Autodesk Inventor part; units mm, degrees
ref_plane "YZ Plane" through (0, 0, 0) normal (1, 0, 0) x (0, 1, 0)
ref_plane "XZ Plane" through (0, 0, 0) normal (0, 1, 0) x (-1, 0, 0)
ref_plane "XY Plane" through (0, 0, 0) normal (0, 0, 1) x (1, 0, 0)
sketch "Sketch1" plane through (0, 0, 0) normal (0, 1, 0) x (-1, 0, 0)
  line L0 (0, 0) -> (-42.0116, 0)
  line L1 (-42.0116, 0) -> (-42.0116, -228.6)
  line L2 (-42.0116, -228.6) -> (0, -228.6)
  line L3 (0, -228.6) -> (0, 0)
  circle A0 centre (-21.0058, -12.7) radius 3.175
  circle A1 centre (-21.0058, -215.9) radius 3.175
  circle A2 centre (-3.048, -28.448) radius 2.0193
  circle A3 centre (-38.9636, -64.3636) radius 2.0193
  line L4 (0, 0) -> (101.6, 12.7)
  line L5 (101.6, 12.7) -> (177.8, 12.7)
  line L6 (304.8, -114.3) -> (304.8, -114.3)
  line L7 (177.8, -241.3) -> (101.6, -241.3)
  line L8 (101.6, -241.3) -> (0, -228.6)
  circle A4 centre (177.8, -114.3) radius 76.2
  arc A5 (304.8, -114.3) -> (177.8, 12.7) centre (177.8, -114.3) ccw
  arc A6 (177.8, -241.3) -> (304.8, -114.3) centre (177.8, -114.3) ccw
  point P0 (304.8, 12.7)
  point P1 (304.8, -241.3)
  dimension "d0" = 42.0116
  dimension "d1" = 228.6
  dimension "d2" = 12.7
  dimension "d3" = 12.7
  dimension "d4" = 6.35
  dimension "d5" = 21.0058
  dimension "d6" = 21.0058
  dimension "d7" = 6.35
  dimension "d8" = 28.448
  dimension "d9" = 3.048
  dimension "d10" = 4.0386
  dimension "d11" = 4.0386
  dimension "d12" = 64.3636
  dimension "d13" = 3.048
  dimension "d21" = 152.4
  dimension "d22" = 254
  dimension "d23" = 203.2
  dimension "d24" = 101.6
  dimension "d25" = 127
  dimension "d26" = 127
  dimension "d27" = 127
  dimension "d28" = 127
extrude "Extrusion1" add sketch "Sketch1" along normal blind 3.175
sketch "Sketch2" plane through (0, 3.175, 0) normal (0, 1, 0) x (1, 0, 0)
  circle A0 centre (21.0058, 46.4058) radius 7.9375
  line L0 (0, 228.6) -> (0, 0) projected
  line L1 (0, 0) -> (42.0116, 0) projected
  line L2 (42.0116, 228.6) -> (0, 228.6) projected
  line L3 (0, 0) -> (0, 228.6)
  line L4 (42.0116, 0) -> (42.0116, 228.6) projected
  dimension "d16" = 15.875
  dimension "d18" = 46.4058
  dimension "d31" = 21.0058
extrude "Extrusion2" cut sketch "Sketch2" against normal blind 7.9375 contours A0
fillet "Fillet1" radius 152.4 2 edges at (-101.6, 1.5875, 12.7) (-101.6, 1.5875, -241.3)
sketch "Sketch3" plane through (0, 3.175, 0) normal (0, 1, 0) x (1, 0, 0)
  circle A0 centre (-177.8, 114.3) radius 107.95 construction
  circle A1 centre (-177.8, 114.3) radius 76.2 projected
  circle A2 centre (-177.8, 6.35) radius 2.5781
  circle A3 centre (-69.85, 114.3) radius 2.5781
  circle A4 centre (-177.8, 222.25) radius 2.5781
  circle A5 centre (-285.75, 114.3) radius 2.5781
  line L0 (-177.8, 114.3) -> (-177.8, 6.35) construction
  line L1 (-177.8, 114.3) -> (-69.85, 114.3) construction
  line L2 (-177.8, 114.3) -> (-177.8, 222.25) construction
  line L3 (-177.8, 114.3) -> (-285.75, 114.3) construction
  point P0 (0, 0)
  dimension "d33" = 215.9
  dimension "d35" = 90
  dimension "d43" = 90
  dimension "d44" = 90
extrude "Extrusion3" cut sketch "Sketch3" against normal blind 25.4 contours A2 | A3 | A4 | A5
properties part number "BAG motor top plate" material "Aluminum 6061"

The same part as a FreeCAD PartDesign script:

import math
import FreeCAD as App
import Part
import Sketcher
from FreeCAD import Vector
Q = App.Units.Quantity


def edges_at(feature, points):
    """Names of the edges that pass closest to the given points."""
    edges = feature.Shape.Edges
    near = lambda p: min(range(len(edges)), key=lambda i: edges[i].distToShape(Part.Vertex(*p))[0])
    return sorted({f"Edge{near(p) + 1}" for p in points})

doc = App.newDocument("Part")
body = doc.addObject("PartDesign::Body", "Body")

sketch1 = body.newObject("Sketcher::SketchObject", "Sketch")
sketch1.AttachmentSupport = (doc.getObject("XZ_Plane"), [""])
sketch1.MapMode = "FlatFace"
sketch1.addGeometry(Part.LineSegment(Vector(42, -228.6, 0), Vector(0, -228.6, 0)), False)
sketch1.addGeometry(Part.LineSegment(Vector(0, -228.6, 0), Vector(-101.6, -241.3, 0)), False)
sketch1.addGeometry(Part.LineSegment(Vector(-101.6, -241.3, 0), Vector(-177.8, -241.3, 0)), False)
sketch1.addGeometry(Part.ArcOfCircle(Part.Circle(Vector(-177.8, -114.3, 0), Vector(0, 0, 1), 127), math.radians(90), math.radians(270)), False)
sketch1.addGeometry(Part.LineSegment(Vector(-177.8, 12.7, 0), Vector(-101.6, 12.7, 0)), False)
sketch1.addGeometry(Part.LineSegment(Vector(-101.6, 12.7, 0), Vector(0, 0, 0)), False)
sketch1.addGeometry(Part.LineSegment(Vector(0, 0, 0), Vector(42, 0, 0)), False)
sketch1.addGeometry(Part.LineSegment(Vector(42, 0, 0), Vector(42, -228.6, 0)), False)
sketch1.addGeometry(Part.Circle(Vector(21, -215.9, 0), Vector(0, 0, 1), 3.2), False)
sketch1.addGeometry(Part.Circle(Vector(39, -64.4, 0), Vector(0, 0, 1), 2), False)
sketch1.addGeometry(Part.Circle(Vector(3, -28.4, 0), Vector(0, 0, 1), 2), False)
sketch1.addGeometry(Part.Circle(Vector(21, -12.7, 0), Vector(0, 0, 1), 3.2), False)
sketch1.addGeometry(Part.Circle(Vector(-177.8, -114.3, 0), Vector(0, 0, 1), 76.2), False)
sketch1.addConstraint(Sketcher.Constraint("Coincident", 0, 2, 1, 1))
sketch1.addConstraint(Sketcher.Constraint("Coincident", 1, 2, 2, 1))
sketch1.addConstraint(Sketcher.Constraint("Tangent", 2, 2, 3, 2))
sketch1.addConstraint(Sketcher.Constraint("Tangent", 3, 1, 4, 1))
sketch1.addConstraint(Sketcher.Constraint("Coincident", 4, 2, 5, 1))
sketch1.addConstraint(Sketcher.Constraint("Coincident", 5, 2, 6, 1))
sketch1.addConstraint(Sketcher.Constraint("Coincident", 6, 2, 7, 1))
sketch1.addConstraint(Sketcher.Constraint("Coincident", 7, 2, 0, 1))
sketch1.addConstraint(Sketcher.Constraint("Horizontal", 0))
sketch1.addConstraint(Sketcher.Constraint("Horizontal", 2))
sketch1.addConstraint(Sketcher.Constraint("Horizontal", 4))
sketch1.addConstraint(Sketcher.Constraint("Horizontal", 6))
sketch1.addConstraint(Sketcher.Constraint("Vertical", 7))
sketch1.addConstraint(Sketcher.Constraint("Coincident", 5, 2, -1, 1))
sketch1.addConstraint(Sketcher.Constraint("Coincident", 12, 3, 3, 3))
sketch1.addConstraint(Sketcher.Constraint("Equal", 9, 10))
sketch1.addConstraint(Sketcher.Constraint("Equal", 8, 11))
sketch1.addConstraint(Sketcher.Constraint("PointOnObject", 0, 2, -2))
sketch1.addConstraint(Sketcher.Constraint("Vertical", 8, 3, 11, 3))
sketch1.addConstraint(Sketcher.Constraint("Vertical", 1, 2, 4, 2))
sketch1.addConstraint(Sketcher.Constraint("Equal", 1, 5))
sketch1.addConstraint(Sketcher.Constraint("Diameter", 12, Q("6 in")))
sketch1.addConstraint(Sketcher.Constraint("Radius", 3, Q("5 in")))
sketch1.addConstraint(Sketcher.Constraint("Diameter", 8, Q("0.25 in")))
sketch1.addConstraint(Sketcher.Constraint("DistanceY", 7, 2, 7, 1, Q("9 in")))
sketch1.addConstraint(Sketcher.Constraint("Diameter", 9, Q("0.159 in")))
sketch1.addConstraint(Sketcher.Constraint("DistanceX", 1, 2, -1, 1, Q("4 in")))
sketch1.addConstraint(Sketcher.Constraint("DistanceY", 8, 3, 3, 3, Q("4 in")))
sketch1.addConstraint(Sketcher.Constraint("DistanceY", 8, 3, 11, 3, Q("8 in")))
sketch1.addConstraint(Sketcher.Constraint("DistanceX", 0, 2, 0, 1, Q("1.654 in")))
sketch1.addConstraint(Sketcher.Constraint("DistanceX", 2, 2, 2, 1, Q("3 in")))
sketch1.addConstraint(Sketcher.Constraint("DistanceX", -1, 1, 10, 3, Q("0.12 in")))
sketch1.addConstraint(Sketcher.Constraint("DistanceY", 10, 3, -1, 1, Q("1.12 in")))
sketch1.addConstraint(Sketcher.Constraint("DistanceX", 9, 3, 6, 2, Q("0.12 in")))
sketch1.addConstraint(Sketcher.Constraint("DistanceX", -1, 1, 8, 3, Q("0.827 in")))
sketch1.addConstraint(Sketcher.Constraint("DistanceY", 9, 3, -1, 1, Q("2.534 in")))
pad1 = body.newObject("PartDesign::Pad", "Pad")
pad1.Profile = sketch1
pad1.Length = Q("0.125 in")
pad1.Reversed = True

sketch2 = body.newObject("Sketcher::SketchObject", "Sketch001")
sketch2.AttachmentSupport = (doc.getObject("XZ_Plane"), [""])
sketch2.MapMode = "FlatFace"
sketch2.AttachmentOffset = App.Placement(Vector(0, 0, -0.125 * 25.4), App.Rotation())
sketch2.addGeometry(Part.Circle(Vector(21, -46, 0), Vector(0, 0, 1), 8), False)
sketch2.addConstraint(Sketcher.Constraint("Diameter", 0, Q("0.625 in")))
sketch2.addConstraint(Sketcher.Constraint("DistanceX", -1, 1, 0, 3, Q("0.827 in")))
sketch2.addConstraint(Sketcher.Constraint("DistanceY", 0, 3, -1, 1, Q("1.827 in")))
pocket1 = body.newObject("PartDesign::Pocket", "Pocket")
pocket1.Profile = sketch2
pocket1.Length = Q("0.3125 in")
pocket1.Reversed = True
doc.recompute()

fillet = body.newObject("PartDesign::Fillet", "Fillet")
fillet.Base = (pocket1, edges_at(pocket1, [(-101.6, 1.587, 12.7), (-101.6, 1.587, -241.3)]))
fillet.Radius = Q("6 in")

sketch3 = body.newObject("Sketcher::SketchObject", "Sketch002")
sketch3.AttachmentSupport = (doc.getObject("XZ_Plane"), [""])
sketch3.MapMode = "FlatFace"
sketch3.AttachmentOffset = App.Placement(Vector(0, 0, -0.125 * 25.4), App.Rotation())
sketch3.addGeometry(Part.Circle(Vector(-177.8, -6.3, 0), Vector(0, 0, 1), 2.6), False)
sketch3.addGeometry(Part.Circle(Vector(-69.8, -114.3, 0), Vector(0, 0, 1), 2.6), False)
sketch3.addGeometry(Part.Circle(Vector(-177.8, -222.2, 0), Vector(0, 0, 1), 2.6), False)
sketch3.addGeometry(Part.Circle(Vector(-285.8, -114.3, 0), Vector(0, 0, 1), 2.6), False)
sketch3.addConstraint(Sketcher.Constraint("Equal", 0, 1))
sketch3.addConstraint(Sketcher.Constraint("Equal", 1, 2))
sketch3.addConstraint(Sketcher.Constraint("Equal", 2, 3))
sketch3.addConstraint(Sketcher.Constraint("Horizontal", 1, 3, 3, 3))
sketch3.addConstraint(Sketcher.Constraint("Vertical", 0, 3, 2, 3))
sketch3.addConstraint(Sketcher.Constraint("DistanceY", 2, 3, 0, 3, Q("8.5 in")))
sketch3.addConstraint(Sketcher.Constraint("DistanceX", 3, 3, 1, 3, Q("8.5 in")))
sketch3.addConstraint(Sketcher.Constraint("Diameter", 0, Q("0.203 in")))
sketch3.addConstraint(Sketcher.Constraint("DistanceX", 0, 3, -1, 1, Q("7 in")))
sketch3.addConstraint(Sketcher.Constraint("DistanceY", 1, 3, -1, 1, Q("4.5 in")))
sketch3.addConstraint(Sketcher.Constraint("DistanceY", 0, 3, -1, 1, Q("0.25 in")))
sketch3.addConstraint(Sketcher.Constraint("DistanceX", 1, 3, -1, 1, Q("2.75 in")))
pocket2 = body.newObject("PartDesign::Pocket", "Pocket001")
pocket2.Profile = sketch3
pocket2.Length = Q("1 in")
pocket2.Reversed = True

doc.recompute()
